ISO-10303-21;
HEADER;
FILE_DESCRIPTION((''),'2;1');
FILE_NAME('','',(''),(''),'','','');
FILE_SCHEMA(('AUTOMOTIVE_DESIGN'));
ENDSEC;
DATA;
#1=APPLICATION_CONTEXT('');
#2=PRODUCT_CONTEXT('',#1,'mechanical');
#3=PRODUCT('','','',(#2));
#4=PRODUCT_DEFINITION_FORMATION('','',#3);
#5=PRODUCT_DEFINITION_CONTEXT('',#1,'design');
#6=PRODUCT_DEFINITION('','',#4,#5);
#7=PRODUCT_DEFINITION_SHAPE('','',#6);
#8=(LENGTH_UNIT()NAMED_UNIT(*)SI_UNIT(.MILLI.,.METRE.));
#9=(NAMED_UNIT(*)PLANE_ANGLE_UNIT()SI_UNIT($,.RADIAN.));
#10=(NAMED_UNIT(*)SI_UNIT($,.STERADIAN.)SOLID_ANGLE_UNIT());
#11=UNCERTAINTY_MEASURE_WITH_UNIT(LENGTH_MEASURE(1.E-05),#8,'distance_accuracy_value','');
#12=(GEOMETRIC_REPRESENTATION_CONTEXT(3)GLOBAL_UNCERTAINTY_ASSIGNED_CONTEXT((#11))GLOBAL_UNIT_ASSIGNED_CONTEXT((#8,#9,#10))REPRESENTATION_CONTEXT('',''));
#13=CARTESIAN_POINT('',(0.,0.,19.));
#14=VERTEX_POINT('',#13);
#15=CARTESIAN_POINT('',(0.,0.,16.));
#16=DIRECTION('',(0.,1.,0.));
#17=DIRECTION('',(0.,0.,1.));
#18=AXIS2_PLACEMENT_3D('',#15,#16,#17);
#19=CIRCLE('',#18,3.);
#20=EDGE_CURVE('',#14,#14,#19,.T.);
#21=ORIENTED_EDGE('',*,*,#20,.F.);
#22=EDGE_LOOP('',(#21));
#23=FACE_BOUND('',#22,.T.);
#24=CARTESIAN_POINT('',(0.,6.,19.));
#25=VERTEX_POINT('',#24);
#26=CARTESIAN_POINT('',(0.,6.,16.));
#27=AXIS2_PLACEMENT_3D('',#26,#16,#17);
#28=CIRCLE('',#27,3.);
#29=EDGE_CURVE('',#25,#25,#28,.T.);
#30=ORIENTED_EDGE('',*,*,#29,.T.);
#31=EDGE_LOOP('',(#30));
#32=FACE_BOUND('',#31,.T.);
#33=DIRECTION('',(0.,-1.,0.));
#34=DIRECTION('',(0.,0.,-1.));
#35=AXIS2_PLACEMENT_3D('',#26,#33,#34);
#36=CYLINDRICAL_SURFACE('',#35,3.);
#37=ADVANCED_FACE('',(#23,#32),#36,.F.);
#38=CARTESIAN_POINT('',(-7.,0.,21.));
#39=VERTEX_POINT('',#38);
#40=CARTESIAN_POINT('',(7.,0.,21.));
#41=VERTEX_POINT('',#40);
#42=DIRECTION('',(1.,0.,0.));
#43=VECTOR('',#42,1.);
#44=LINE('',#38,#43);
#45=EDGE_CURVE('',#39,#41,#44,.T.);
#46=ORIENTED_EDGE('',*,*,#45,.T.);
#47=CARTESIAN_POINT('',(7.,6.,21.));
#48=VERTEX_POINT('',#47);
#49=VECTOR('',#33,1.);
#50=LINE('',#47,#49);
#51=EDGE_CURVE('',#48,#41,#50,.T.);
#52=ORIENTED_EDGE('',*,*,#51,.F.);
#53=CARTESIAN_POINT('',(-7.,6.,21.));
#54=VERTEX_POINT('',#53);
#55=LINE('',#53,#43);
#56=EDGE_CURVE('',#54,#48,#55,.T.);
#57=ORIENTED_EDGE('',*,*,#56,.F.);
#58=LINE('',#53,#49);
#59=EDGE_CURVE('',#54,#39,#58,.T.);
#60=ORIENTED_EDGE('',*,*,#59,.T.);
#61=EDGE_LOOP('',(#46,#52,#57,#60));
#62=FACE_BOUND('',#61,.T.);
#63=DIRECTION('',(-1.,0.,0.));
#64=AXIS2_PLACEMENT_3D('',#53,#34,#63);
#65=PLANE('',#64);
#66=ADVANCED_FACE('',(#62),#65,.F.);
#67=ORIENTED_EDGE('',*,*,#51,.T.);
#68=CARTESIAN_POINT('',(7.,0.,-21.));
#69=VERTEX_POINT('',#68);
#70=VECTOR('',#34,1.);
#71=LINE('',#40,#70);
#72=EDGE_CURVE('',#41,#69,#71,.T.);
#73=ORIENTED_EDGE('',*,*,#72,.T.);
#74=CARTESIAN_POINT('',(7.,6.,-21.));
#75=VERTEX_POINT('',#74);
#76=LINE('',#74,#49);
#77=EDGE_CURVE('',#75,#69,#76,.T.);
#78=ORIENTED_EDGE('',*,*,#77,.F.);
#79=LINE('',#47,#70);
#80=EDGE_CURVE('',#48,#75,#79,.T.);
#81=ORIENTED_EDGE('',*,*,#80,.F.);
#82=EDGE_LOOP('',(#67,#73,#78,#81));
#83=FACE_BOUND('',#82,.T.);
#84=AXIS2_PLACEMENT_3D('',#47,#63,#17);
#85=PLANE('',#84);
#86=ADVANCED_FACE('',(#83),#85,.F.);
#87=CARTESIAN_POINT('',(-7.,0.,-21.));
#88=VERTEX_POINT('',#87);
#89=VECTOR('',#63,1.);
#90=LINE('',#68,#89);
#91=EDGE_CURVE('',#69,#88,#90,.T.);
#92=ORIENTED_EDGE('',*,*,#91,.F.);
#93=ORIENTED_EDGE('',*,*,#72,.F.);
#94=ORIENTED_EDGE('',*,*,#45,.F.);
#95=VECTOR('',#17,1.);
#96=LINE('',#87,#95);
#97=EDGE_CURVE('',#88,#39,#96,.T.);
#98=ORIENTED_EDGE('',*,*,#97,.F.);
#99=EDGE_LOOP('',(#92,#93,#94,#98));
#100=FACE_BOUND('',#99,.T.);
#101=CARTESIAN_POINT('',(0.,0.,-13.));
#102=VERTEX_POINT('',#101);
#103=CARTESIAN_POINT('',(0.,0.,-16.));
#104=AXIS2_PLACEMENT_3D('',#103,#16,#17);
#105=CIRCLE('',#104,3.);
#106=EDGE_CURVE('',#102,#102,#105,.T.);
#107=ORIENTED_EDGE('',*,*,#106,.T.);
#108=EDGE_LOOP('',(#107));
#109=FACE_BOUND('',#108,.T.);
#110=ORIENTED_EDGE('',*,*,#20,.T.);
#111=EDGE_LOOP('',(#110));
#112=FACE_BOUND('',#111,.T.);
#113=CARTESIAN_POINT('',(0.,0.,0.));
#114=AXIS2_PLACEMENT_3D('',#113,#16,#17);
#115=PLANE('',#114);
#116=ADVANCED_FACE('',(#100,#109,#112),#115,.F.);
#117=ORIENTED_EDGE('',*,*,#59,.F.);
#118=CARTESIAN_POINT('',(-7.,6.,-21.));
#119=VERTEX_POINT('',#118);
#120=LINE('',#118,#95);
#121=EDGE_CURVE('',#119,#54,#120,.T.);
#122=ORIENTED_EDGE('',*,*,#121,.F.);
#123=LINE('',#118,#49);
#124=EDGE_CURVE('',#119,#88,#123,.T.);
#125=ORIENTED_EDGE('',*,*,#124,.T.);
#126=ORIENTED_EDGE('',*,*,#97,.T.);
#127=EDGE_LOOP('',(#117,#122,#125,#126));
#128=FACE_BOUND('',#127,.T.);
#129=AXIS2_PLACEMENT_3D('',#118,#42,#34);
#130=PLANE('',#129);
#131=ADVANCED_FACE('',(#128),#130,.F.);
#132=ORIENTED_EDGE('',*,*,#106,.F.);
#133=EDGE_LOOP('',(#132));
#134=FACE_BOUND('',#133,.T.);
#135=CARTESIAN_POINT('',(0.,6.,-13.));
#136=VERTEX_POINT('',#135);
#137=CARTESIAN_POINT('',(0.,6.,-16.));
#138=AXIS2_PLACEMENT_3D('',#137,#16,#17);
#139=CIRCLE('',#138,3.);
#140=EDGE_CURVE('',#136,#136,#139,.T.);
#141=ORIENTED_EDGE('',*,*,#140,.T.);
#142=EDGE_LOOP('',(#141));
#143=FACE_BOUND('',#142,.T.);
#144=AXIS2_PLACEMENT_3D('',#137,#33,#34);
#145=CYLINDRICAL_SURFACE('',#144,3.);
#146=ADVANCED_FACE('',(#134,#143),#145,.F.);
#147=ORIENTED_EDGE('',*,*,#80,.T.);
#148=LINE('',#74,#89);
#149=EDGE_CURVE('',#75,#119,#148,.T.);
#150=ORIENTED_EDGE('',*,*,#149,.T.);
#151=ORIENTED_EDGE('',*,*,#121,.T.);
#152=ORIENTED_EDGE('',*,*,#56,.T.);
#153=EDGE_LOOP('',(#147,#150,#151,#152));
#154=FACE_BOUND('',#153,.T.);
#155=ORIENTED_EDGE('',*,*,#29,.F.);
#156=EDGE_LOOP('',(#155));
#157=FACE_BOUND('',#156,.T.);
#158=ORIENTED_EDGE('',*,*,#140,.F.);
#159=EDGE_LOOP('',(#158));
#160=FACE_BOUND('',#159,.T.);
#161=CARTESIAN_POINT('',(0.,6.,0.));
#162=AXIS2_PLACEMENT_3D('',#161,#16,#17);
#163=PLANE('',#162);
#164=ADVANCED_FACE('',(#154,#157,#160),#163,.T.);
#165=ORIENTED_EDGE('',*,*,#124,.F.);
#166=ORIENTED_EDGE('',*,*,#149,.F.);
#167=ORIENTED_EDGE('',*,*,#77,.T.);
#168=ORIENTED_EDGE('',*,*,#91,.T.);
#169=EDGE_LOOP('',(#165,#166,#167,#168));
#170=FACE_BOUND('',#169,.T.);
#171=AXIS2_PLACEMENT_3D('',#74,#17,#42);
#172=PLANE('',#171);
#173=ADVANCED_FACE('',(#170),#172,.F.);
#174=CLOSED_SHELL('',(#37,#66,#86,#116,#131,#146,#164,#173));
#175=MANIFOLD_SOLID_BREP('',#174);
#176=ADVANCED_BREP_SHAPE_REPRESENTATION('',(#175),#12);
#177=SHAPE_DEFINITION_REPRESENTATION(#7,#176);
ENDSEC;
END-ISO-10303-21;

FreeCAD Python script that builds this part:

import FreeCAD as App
import Part
import Sketcher

V = App.Vector
Q = App.Units.Quantity

doc = App.newDocument("Part")
params = doc.addObject("Spreadsheet::Sheet", "Params")
for row, (alias, value) in enumerate([
    ("sketch1_diameter", "6 mm"),
    ("sketch1_width", "14 mm"),
    ("sketch1_height", "42 mm"),
    ("pad1_length", "6 mm"),
], start=1):
    params.set(f"A{row}", alias)
    params.set(f"B{row}", "=" + value)
    params.setAlias(f"B{row}", alias)

body = doc.addObject("PartDesign::Body", "Body")

# Sketch on XZ plane
sketch1 = body.newObject("Sketcher::SketchObject", "Sketch")
sketch1.AttachmentSupport = (doc.getObject("XZ_Plane"), [""])
sketch1.MapMode = "FlatFace"
sketch1.addGeometry([
    Part.LineSegment(V(-7, -21, 0), V(-7, 21, 0)),  # 0
    Part.LineSegment(V(-7, 21, 0), V(7, 21, 0)),  # 1
    Part.LineSegment(V(7, 21, 0), V(7, -21, 0)),  # 2
    Part.LineSegment(V(7, -21, 0), V(-7, -21, 0)),  # 3
    Part.Circle(V(0, 16, 0), V(0, 0, 1), 3),  # 4
    Part.Circle(V(0, -16, 0), V(0, 0, 1), 3),  # 5
], False)
sketch1.addConstraint([
    Sketcher.Constraint("Coincident", 0, 2, 1, 1),
    Sketcher.Constraint("Coincident", 1, 2, 2, 1),
    Sketcher.Constraint("Coincident", 2, 2, 3, 1),
    Sketcher.Constraint("Coincident", 3, 2, 0, 1),
    Sketcher.Constraint("Vertical", 0),
    Sketcher.Constraint("Horizontal", 1),
    Sketcher.Constraint("Vertical", 2),
    Sketcher.Constraint("Horizontal", 3),
    Sketcher.Constraint("Equal", 4, 5),
    Sketcher.Constraint("Symmetric", 4, 3, 5, 3, -1, 1),
    Sketcher.Constraint("Symmetric", 0, 2, 2, 2, -1, 1),
    Sketcher.Constraint("PointOnObject", 4, 3, -2),
    Sketcher.Constraint("Diameter", 4, Q("6 mm")),
    Sketcher.Constraint("DistanceX", 1, 1, 1, 2, Q("14 mm")),
    Sketcher.Constraint("DistanceY", 0, 1, 0, 2, Q("42 mm")),
    Sketcher.Constraint("DistanceY", -1, 1, 4, 3, Q("16 mm")),
])
sketch1.setExpression("Constraints[12]", "Params.sketch1_diameter")
sketch1.setExpression("Constraints[13]", "Params.sketch1_width")
sketch1.setExpression("Constraints[14]", "Params.sketch1_height")
pad1 = body.newObject("PartDesign::Pad", "Pad")
pad1.Profile = sketch1
pad1.setExpression("Length", "Params.pad1_length")
pad1.Reversed = True

doc.recompute()
